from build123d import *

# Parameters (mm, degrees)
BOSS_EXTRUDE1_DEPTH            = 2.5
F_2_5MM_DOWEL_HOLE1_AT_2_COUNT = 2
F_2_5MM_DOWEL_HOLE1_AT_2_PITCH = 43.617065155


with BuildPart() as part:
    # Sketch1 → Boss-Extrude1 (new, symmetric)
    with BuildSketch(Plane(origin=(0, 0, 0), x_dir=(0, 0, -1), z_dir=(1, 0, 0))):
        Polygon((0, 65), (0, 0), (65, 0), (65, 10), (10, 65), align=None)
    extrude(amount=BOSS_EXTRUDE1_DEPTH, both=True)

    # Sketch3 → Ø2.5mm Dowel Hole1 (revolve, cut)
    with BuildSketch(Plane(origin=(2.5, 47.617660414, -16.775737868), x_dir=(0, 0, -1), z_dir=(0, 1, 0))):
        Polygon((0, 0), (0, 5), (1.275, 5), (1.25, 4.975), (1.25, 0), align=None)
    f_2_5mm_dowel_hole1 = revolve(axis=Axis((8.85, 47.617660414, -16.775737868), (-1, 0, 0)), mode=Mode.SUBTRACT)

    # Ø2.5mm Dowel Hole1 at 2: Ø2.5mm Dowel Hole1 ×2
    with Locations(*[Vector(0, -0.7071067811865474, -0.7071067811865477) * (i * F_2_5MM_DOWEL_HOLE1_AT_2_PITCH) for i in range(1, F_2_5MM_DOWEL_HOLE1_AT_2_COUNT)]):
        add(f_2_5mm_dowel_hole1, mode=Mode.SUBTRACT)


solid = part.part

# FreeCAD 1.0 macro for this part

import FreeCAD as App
import Part
import Sketcher
Q = App.Units.Quantity


def add_polygon(sketch, points):
    """Adds a closed chain of lines whose ends are joined by coincident constraints."""
    first, n = sketch.GeometryCount, len(points)
    for a, b in zip(points, points[1:] + points[:1]):
        sketch.addGeometry(Part.LineSegment(App.Vector(*a, 0), App.Vector(*b, 0)), False)
    for i in range(n):
        sketch.addConstraint(Sketcher.Constraint("Coincident", first + i, 2, first + (i + 1) % n, 1))

doc = App.newDocument("Part")
params = doc.addObject("Spreadsheet::Sheet", "Params")
for row, (alias, value) in enumerate([
    ("sketch1_width", "65 mm"),
    ("sketch1_width2", "10 mm"),
    ("pad1_length", "5 mm"),
    ("sketch2_width", "5 mm"),
    ("sketch2_height", "1.25 mm"),
    ("groove_angle", "360 deg"),
    ("linearpattern_pitch", "43.617065 mm"),
], start=1):
    params.set(f"A{row}", alias)
    params.set(f"B{row}", "=" + value)
    params.setAlias(f"B{row}", alias)

body = doc.addObject("PartDesign::Body", "Body")

sketch1 = body.newObject("Sketcher::SketchObject", "Sketch")
sketch1.AttachmentSupport = (doc.getObject("YZ_Plane"), [""])
sketch1.MapMode = "FlatFace"
add_polygon(sketch1, [(65, 0), (0, 0), (0, -65), (10, -65), (65, -10)])
sketch1.addConstraint([
    Sketcher.Constraint("Horizontal", 0),
    Sketcher.Constraint("Vertical", 1),
    Sketcher.Constraint("Horizontal", 2),
    Sketcher.Constraint("Vertical", 4),
    Sketcher.Constraint("Coincident", 0, 2, -1, 1),
    Sketcher.Constraint("Equal", 0, 1),
    Sketcher.Constraint("Equal", 2, 4),
    Sketcher.Constraint("DistanceX", 0, 2, 0, 1, Q("65 mm")),
    Sketcher.Constraint("DistanceX", 2, 1, 2, 2, Q("10 mm")),
])
sketch1.setExpression("Constraints[12]", "Params.sketch1_width")
sketch1.setExpression("Constraints[13]", "Params.sketch1_width2")
pad1 = body.newObject("PartDesign::Pad", "Pad")
pad1.Profile = sketch1
pad1.setExpression("Length", "Params.pad1_length")
pad1.Midplane = True

sketch2 = body.newObject("Sketcher::SketchObject", "Sketch001")
sketch2.AttachmentSupport = (doc.getObject("XZ_Plane"), [""])
sketch2.MapMode = "FlatFace"
sketch2.AttachmentOffset = App.Placement(App.Vector(0, 0, -47.61766), App.Rotation())
add_polygon(sketch2, [(-2.5, -16.776), (2.5, -16.776), (2.5, -18.026), (-2.475, -18.026), (-2.5, -18.051)])
sketch2.addGeometry(Part.LineSegment(App.Vector(2.5, -16.776, 0), App.Vector(-2.5, -16.776, 0)), True)
sketch2.addConstraint([
    Sketcher.Constraint("Horizontal", 0),
    Sketcher.Constraint("Vertical", 1),
    Sketcher.Constraint("Horizontal", 2),
    Sketcher.Constraint("Vertical", 4),
    Sketcher.Constraint("Horizontal", 5),
    Sketcher.Constraint("Coincident", 5, 1, 0, 2),
    Sketcher.Constraint("Vertical", 3, 2, 5, 2),
    Sketcher.Constraint("DistanceX", 0, 1, 0, 2, Q("5 mm")),
    Sketcher.Constraint("Angle", 3, Q("-135 deg")),
    Sketcher.Constraint("DistanceY", 1, 2, 1, 1, Q("1.25 mm")),
    Sketcher.Constraint("DistanceX", -1, 1, 0, 2, Q("2.5 mm")),
    Sketcher.Constraint("DistanceX", 2, 2, 2, 1, Q("4.975 mm")),
    Sketcher.Constraint("DistanceY", 0, 2, -1, 1, Q("16.775738 mm")),
])
sketch2.setExpression("Constraints[12]", "Params.sketch2_width")
sketch2.setExpression("Constraints[14]", "Params.sketch2_height")
groove = body.newObject("PartDesign::Groove", "Groove")
groove.Profile = sketch2
groove.ReferenceAxis = (sketch2, ["Axis0"])
groove.setExpression("Angle", "Params.groove_angle")
doc.recompute()

datumline = body.newObject("PartDesign::Line", "DatumLine")
datumline.Placement = App.Placement(App.Vector(0, 0, 0), App.Rotation(App.Vector(0, 0, 1), App.Vector(0, -0.707106781, -0.707106781)))
linearpattern = body.newObject("PartDesign::LinearPattern", "LinearPattern")
linearpattern.Originals = [groove]
linearpattern.Direction = (datumline, [""])
linearpattern.Mode = "offset"
linearpattern.setExpression("Offset", "Params.linearpattern_pitch")
linearpattern.Occurrences = 2
body.Tip = linearpattern

doc.recompute()
